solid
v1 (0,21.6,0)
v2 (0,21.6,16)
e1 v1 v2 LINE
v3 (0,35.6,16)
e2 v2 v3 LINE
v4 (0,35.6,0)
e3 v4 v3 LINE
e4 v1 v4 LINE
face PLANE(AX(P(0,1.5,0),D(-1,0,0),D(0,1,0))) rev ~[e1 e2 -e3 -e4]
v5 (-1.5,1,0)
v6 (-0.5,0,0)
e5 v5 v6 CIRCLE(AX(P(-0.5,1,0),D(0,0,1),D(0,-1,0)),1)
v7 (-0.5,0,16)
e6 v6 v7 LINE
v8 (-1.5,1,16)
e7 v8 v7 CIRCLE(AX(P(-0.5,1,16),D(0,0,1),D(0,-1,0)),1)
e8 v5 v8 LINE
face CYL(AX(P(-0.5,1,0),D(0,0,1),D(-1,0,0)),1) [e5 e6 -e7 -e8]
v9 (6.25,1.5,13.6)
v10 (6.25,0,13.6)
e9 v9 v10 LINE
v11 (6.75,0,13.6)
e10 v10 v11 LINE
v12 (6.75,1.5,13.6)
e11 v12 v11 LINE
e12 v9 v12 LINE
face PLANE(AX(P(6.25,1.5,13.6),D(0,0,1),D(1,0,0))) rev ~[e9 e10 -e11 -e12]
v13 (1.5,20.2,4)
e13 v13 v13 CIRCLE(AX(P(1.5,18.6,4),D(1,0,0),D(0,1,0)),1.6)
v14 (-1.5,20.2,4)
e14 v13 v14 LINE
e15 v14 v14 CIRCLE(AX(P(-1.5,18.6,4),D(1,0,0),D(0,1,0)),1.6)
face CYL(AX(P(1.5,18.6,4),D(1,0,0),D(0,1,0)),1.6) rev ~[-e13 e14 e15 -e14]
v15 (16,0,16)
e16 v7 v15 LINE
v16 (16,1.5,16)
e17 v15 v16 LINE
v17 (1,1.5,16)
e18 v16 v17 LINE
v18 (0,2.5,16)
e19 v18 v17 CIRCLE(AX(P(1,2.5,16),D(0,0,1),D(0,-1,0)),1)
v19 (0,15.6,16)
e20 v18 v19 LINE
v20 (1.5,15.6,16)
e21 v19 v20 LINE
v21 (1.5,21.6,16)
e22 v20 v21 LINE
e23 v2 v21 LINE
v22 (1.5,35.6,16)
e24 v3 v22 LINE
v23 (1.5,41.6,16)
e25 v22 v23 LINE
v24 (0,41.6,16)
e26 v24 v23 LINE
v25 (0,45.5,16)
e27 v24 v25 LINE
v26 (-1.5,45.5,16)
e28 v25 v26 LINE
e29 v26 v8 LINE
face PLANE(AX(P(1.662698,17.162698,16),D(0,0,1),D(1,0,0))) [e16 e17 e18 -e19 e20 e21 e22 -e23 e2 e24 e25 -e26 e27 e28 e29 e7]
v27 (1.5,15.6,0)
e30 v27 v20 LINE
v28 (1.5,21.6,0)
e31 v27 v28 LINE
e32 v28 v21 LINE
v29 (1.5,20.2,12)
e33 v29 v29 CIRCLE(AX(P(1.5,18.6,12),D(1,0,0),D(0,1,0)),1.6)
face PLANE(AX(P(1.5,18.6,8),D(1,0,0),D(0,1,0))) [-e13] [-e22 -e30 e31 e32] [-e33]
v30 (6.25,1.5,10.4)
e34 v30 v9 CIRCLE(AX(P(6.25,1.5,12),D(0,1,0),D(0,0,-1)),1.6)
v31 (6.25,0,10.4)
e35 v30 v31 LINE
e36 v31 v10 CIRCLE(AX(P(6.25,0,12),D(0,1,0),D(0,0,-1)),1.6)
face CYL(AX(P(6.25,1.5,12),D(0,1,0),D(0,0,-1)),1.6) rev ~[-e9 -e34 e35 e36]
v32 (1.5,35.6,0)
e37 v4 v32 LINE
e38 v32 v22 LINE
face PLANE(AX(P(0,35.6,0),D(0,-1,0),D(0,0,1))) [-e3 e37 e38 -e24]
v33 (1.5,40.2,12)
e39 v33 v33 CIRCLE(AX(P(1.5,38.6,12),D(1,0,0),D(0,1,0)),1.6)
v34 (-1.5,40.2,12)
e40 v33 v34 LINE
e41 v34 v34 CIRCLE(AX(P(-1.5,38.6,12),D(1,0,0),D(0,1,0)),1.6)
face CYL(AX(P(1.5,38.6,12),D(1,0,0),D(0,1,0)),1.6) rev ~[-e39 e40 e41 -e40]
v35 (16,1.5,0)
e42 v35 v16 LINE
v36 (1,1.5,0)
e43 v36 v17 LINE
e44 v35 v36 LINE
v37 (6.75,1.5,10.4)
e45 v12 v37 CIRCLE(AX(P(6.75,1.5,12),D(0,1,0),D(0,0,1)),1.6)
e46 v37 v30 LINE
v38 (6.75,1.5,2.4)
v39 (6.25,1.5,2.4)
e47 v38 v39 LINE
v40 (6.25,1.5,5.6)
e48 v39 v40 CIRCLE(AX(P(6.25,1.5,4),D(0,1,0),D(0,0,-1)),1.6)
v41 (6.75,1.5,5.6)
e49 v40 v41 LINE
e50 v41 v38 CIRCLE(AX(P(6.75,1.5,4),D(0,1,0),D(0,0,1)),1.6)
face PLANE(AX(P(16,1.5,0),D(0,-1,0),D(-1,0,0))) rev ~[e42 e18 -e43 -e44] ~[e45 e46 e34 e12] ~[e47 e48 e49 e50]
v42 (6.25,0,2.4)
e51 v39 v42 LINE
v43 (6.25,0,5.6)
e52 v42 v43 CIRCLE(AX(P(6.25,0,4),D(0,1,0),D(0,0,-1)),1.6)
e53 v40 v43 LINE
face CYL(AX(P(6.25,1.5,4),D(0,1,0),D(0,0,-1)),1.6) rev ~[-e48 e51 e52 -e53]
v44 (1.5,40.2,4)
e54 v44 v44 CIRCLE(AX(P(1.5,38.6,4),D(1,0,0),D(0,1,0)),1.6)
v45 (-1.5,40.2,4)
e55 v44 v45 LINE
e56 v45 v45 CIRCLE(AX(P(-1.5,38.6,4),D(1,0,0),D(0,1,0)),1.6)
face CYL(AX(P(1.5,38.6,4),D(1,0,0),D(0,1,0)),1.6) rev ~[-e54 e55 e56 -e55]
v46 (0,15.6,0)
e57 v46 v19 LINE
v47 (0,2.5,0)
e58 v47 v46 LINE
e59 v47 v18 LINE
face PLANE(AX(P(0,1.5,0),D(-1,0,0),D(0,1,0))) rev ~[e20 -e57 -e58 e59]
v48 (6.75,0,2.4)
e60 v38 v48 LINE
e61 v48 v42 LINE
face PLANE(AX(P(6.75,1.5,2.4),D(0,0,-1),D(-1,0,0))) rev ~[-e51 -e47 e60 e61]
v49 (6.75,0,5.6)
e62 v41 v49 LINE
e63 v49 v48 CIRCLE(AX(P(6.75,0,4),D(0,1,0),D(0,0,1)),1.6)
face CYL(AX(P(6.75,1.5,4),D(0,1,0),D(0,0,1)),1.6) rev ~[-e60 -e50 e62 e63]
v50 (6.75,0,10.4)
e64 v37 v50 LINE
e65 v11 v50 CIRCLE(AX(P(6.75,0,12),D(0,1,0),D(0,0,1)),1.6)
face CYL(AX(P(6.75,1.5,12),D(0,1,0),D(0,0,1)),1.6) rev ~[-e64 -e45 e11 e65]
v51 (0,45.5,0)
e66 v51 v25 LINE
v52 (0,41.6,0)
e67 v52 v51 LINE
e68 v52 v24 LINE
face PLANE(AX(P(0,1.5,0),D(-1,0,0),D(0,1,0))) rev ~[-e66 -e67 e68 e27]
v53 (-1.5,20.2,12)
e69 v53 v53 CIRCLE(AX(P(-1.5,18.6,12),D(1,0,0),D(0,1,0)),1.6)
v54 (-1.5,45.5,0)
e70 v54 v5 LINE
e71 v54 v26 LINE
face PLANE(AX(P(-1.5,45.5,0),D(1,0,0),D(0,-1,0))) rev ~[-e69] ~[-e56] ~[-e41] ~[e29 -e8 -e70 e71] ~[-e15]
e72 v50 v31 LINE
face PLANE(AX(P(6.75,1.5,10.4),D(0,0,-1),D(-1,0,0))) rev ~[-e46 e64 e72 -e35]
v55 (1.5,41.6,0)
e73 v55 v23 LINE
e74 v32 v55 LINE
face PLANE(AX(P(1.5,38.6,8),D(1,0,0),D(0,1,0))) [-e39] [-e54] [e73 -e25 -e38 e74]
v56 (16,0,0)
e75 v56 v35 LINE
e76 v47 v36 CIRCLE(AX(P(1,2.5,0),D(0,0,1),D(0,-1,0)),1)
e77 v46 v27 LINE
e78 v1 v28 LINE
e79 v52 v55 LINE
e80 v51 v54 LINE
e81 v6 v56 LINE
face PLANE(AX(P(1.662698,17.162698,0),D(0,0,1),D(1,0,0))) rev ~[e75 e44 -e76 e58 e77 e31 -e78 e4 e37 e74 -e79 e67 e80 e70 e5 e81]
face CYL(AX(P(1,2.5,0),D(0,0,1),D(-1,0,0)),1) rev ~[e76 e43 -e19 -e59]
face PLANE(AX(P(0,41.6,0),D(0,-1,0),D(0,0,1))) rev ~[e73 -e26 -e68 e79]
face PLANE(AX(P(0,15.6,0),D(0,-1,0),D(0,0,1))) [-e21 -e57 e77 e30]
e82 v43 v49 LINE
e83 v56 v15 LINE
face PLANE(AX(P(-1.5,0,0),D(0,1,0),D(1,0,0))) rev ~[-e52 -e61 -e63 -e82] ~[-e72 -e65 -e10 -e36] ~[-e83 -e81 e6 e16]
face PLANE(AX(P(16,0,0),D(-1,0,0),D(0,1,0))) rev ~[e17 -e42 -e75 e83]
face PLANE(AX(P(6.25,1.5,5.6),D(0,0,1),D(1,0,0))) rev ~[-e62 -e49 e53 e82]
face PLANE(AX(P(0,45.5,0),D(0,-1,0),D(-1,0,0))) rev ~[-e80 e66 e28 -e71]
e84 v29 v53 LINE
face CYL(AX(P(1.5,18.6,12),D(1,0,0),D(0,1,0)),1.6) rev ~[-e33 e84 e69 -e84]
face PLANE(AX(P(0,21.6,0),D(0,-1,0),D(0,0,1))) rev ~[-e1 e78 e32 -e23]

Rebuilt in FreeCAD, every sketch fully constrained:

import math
import FreeCAD as App
import Part
import Sketcher
from FreeCAD import Vector
Q = App.Units.Quantity


def edges_at(feature, points):
    """Names of the edges that pass closest to the given points."""
    edges = feature.Shape.Edges
    near = lambda p: min(range(len(edges)), key=lambda i: edges[i].distToShape(Part.Vertex(*p))[0])
    return sorted({f"Edge{near(p) + 1}" for p in points})


def add_polygon(sketch, points):
    """Adds a closed chain of lines whose ends are joined by coincident constraints."""
    first, n = sketch.GeometryCount, len(points)
    for a, b in zip(points, points[1:] + points[:1]):
        sketch.addGeometry(Part.LineSegment(App.Vector(*a, 0), App.Vector(*b, 0)), False)
    for i in range(n):
        sketch.addConstraint(Sketcher.Constraint("Coincident", first + i, 2, first + (i + 1) % n, 1))

doc = App.newDocument("Part")
body = doc.addObject("PartDesign::Body", "Body")

sketch1 = body.newObject("Sketcher::SketchObject", "Sketch")
sketch1.AttachmentSupport = (doc.getObject("XY_Plane"), [""])
sketch1.MapMode = "FlatFace"
add_polygon(sketch1, [(0, 1.5), (0, 45.5), (-1.5, 45.5), (-1.5, 0), (16, 0), (16, 1.5)])
sketch1.addConstraint(Sketcher.Constraint("Vertical", 0))
sketch1.addConstraint(Sketcher.Constraint("Horizontal", 1))
sketch1.addConstraint(Sketcher.Constraint("Vertical", 2))
sketch1.addConstraint(Sketcher.Constraint("Horizontal", 3))
sketch1.addConstraint(Sketcher.Constraint("Vertical", 4))
sketch1.addConstraint(Sketcher.Constraint("Horizontal", 5))
sketch1.addConstraint(Sketcher.Constraint("PointOnObject", 0, 2, -2))
sketch1.addConstraint(Sketcher.Constraint("PointOnObject", 2, 2, -1))
sketch1.addConstraint(Sketcher.Constraint("Equal", 1, 4))
sketch1.addConstraint(Sketcher.Constraint("DistanceX", 5, 2, 5, 1, Q("16 mm")))
sketch1.addConstraint(Sketcher.Constraint("DistanceY", 0, 1, 0, 2, Q("44 mm")))
sketch1.addConstraint(Sketcher.Constraint("DistanceX", 1, 2, 1, 1, Q("1.5 mm")))
pad1 = body.newObject("PartDesign::Pad", "Pad")
pad1.Profile = sketch1
pad1.Length = 16
doc.recompute()

fillet = body.newObject("PartDesign::Fillet", "Fillet")
fillet.Base = (pad1, edges_at(pad1, [(-1.5, 0, 8)]))
fillet.Radius = 1
doc.recompute()

fillet2 = body.newObject("PartDesign::Fillet", "Fillet001")
fillet2.Base = (fillet, edges_at(fillet, [(0, 1.5, 8)]))
fillet2.Radius = 1

sketch2 = body.newObject("Sketcher::SketchObject", "Sketch001")
sketch2.AttachmentSupport = (doc.getObject("XZ_Plane"), [""])
sketch2.MapMode = "FlatFace"
sketch2.AttachmentOffset = App.Placement(Vector(0, 0, -1.5), App.Rotation())
sketch2.addGeometry(Part.ArcOfCircle(Part.Circle(Vector(6.8, 4, 0), Vector(0, 0, 1), 1.6), math.radians(-90), math.radians(90)), False)
sketch2.addGeometry(Part.LineSegment(Vector(6.8, 2.4, 0), Vector(6.2, 2.4, 0)), False)
sketch2.addGeometry(Part.ArcOfCircle(Part.Circle(Vector(6.2, 4, 0), Vector(0, 0, 1), 1.6), math.radians(90), math.radians(270)), False)
sketch2.addGeometry(Part.LineSegment(Vector(6.2, 5.6, 0), Vector(6.8, 5.6, 0)), False)
sketch2.addGeometry(Part.ArcOfCircle(Part.Circle(Vector(6.8, 12, 0), Vector(0, 0, 1), 1.6), math.radians(-90), math.radians(90)), False)
sketch2.addGeometry(Part.LineSegment(Vector(6.8, 10.4, 0), Vector(6.2, 10.4, 0)), False)
sketch2.addGeometry(Part.ArcOfCircle(Part.Circle(Vector(6.2, 12, 0), Vector(0, 0, 1), 1.6), math.radians(90), math.radians(270)), False)
sketch2.addGeometry(Part.LineSegment(Vector(6.2, 13.6, 0), Vector(6.8, 13.6, 0)), False)
sketch2.addConstraint(Sketcher.Constraint("Tangent", 0, 1, 1, 1))
sketch2.addConstraint(Sketcher.Constraint("Tangent", 1, 2, 2, 2))
sketch2.addConstraint(Sketcher.Constraint("Tangent", 2, 1, 3, 1))
sketch2.addConstraint(Sketcher.Constraint("Tangent", 3, 2, 0, 2))
sketch2.addConstraint(Sketcher.Constraint("Tangent", 4, 1, 5, 1))
sketch2.addConstraint(Sketcher.Constraint("Tangent", 5, 2, 6, 2))
sketch2.addConstraint(Sketcher.Constraint("Tangent", 6, 1, 7, 1))
sketch2.addConstraint(Sketcher.Constraint("Tangent", 7, 2, 4, 2))
sketch2.addConstraint(Sketcher.Constraint("Horizontal", 1))
sketch2.addConstraint(Sketcher.Constraint("Horizontal", 3))
sketch2.addConstraint(Sketcher.Constraint("Horizontal", 5))
sketch2.addConstraint(Sketcher.Constraint("Horizontal", 7))
sketch2.addConstraint(Sketcher.Constraint("Equal", 2, 4))
sketch2.addConstraint(Sketcher.Constraint("Vertical", 0, 3, 4, 3))
sketch2.addConstraint(Sketcher.Constraint("Vertical", 2, 3, 6, 3))
sketch2.addConstraint(Sketcher.Constraint("Radius", 0, Q("1.6 mm")))
sketch2.addConstraint(Sketcher.Constraint("DistanceX", 1, 2, 1, 1, Q("0.5 mm")))
sketch2.addConstraint(Sketcher.Constraint("DistanceY", -1, 1, 0, 3, Q("4 mm")))
sketch2.addConstraint(Sketcher.Constraint("DistanceY", -1, 1, 4, 3, Q("12 mm")))
sketch2.addConstraint(Sketcher.Constraint("DistanceX", -1, 1, 0, 3, Q("6.75 mm")))
pocket1 = body.newObject("PartDesign::Pocket", "Pocket")
pocket1.Profile = sketch2
pocket1.Length = 1.5
pocket1.Reversed = True

sketch3 = body.newObject("Sketcher::SketchObject", "Sketch002")
sketch3.AttachmentSupport = (doc.getObject("YZ_Plane"), [""])
sketch3.MapMode = "FlatFace"
add_polygon(sketch3, [(36, 16), (36, 0), (42, 0), (42, 16)])
add_polygon(sketch3, [(16, 16), (16, 0), (22, 0), (22, 16)])
sketch3.addConstraint(Sketcher.Constraint("Vertical", 0))
sketch3.addConstraint(Sketcher.Constraint("Horizontal", 1))
sketch3.addConstraint(Sketcher.Constraint("Vertical", 2))
sketch3.addConstraint(Sketcher.Constraint("Horizontal", 3))
sketch3.addConstraint(Sketcher.Constraint("Vertical", 4))
sketch3.addConstraint(Sketcher.Constraint("Horizontal", 5))
sketch3.addConstraint(Sketcher.Constraint("Vertical", 6))
sketch3.addConstraint(Sketcher.Constraint("Horizontal", 7))
sketch3.addConstraint(Sketcher.Constraint("PointOnObject", 0, 2, -1))
sketch3.addConstraint(Sketcher.Constraint("PointOnObject", 4, 2, -1))
sketch3.addConstraint(Sketcher.Constraint("Horizontal", 3, 2, 6, 2))
sketch3.addConstraint(Sketcher.Constraint("Equal", 3, 5))
sketch3.addConstraint(Sketcher.Constraint("DistanceX", 1, 1, 1, 2, Q("6 mm")))
sketch3.addConstraint(Sketcher.Constraint("DistanceY", 0, 2, 0, 1, Q("16 mm")))
sketch3.addConstraint(Sketcher.Constraint("DistanceX", 4, 2, 0, 2, Q("20 mm")))
sketch3.addConstraint(Sketcher.Constraint("DistanceX", -1, 1, 0, 2, Q("35.6 mm")))
pad2 = body.newObject("PartDesign::Pad", "Pad001")
pad2.Profile = sketch3
pad2.Length = 1.5

sketch4 = body.newObject("Sketcher::SketchObject", "Sketch003")
sketch4.AttachmentSupport = (doc.getObject("YZ_Plane"), [""])
sketch4.MapMode = "FlatFace"
sketch4.AttachmentOffset = App.Placement(Vector(0, 0, 1.5), App.Rotation())
sketch4.addGeometry(Part.Circle(Vector(38.6, 12, 0), Vector(0, 0, 1), 1.6), False)
sketch4.addGeometry(Part.Circle(Vector(38.6, 4, 0), Vector(0, 0, 1), 1.6), False)
sketch4.addGeometry(Part.Circle(Vector(18.6, 12, 0), Vector(0, 0, 1), 1.6), False)
sketch4.addGeometry(Part.Circle(Vector(18.6, 4, 0), Vector(0, 0, 1), 1.6), False)
sketch4.addConstraint(Sketcher.Constraint("Equal", 0, 1))
sketch4.addConstraint(Sketcher.Constraint("Equal", 1, 2))
sketch4.addConstraint(Sketcher.Constraint("Equal", 2, 3))
sketch4.addConstraint(Sketcher.Constraint("Horizontal", 0, 3, 2, 3))
sketch4.addConstraint(Sketcher.Constraint("Horizontal", 1, 3, 3, 3))
sketch4.addConstraint(Sketcher.Constraint("Vertical", 0, 3, 1, 3))
sketch4.addConstraint(Sketcher.Constraint("Vertical", 2, 3, 3, 3))
sketch4.addConstraint(Sketcher.Constraint("Diameter", 0, Q("3.2 mm")))
sketch4.addConstraint(Sketcher.Constraint("DistanceY", -1, 1, 0, 3, Q("12 mm")))
sketch4.addConstraint(Sketcher.Constraint("DistanceY", -1, 1, 1, 3, Q("4 mm")))
sketch4.addConstraint(Sketcher.Constraint("DistanceX", 2, 3, 0, 3, Q("20 mm")))
sketch4.addConstraint(Sketcher.Constraint("DistanceX", -1, 1, 0, 3, Q("38.6 mm")))
pocket2 = body.newObject("PartDesign::Pocket", "Pocket001")
pocket2.Profile = sketch4
pocket2.Length = 3

doc.recompute()
